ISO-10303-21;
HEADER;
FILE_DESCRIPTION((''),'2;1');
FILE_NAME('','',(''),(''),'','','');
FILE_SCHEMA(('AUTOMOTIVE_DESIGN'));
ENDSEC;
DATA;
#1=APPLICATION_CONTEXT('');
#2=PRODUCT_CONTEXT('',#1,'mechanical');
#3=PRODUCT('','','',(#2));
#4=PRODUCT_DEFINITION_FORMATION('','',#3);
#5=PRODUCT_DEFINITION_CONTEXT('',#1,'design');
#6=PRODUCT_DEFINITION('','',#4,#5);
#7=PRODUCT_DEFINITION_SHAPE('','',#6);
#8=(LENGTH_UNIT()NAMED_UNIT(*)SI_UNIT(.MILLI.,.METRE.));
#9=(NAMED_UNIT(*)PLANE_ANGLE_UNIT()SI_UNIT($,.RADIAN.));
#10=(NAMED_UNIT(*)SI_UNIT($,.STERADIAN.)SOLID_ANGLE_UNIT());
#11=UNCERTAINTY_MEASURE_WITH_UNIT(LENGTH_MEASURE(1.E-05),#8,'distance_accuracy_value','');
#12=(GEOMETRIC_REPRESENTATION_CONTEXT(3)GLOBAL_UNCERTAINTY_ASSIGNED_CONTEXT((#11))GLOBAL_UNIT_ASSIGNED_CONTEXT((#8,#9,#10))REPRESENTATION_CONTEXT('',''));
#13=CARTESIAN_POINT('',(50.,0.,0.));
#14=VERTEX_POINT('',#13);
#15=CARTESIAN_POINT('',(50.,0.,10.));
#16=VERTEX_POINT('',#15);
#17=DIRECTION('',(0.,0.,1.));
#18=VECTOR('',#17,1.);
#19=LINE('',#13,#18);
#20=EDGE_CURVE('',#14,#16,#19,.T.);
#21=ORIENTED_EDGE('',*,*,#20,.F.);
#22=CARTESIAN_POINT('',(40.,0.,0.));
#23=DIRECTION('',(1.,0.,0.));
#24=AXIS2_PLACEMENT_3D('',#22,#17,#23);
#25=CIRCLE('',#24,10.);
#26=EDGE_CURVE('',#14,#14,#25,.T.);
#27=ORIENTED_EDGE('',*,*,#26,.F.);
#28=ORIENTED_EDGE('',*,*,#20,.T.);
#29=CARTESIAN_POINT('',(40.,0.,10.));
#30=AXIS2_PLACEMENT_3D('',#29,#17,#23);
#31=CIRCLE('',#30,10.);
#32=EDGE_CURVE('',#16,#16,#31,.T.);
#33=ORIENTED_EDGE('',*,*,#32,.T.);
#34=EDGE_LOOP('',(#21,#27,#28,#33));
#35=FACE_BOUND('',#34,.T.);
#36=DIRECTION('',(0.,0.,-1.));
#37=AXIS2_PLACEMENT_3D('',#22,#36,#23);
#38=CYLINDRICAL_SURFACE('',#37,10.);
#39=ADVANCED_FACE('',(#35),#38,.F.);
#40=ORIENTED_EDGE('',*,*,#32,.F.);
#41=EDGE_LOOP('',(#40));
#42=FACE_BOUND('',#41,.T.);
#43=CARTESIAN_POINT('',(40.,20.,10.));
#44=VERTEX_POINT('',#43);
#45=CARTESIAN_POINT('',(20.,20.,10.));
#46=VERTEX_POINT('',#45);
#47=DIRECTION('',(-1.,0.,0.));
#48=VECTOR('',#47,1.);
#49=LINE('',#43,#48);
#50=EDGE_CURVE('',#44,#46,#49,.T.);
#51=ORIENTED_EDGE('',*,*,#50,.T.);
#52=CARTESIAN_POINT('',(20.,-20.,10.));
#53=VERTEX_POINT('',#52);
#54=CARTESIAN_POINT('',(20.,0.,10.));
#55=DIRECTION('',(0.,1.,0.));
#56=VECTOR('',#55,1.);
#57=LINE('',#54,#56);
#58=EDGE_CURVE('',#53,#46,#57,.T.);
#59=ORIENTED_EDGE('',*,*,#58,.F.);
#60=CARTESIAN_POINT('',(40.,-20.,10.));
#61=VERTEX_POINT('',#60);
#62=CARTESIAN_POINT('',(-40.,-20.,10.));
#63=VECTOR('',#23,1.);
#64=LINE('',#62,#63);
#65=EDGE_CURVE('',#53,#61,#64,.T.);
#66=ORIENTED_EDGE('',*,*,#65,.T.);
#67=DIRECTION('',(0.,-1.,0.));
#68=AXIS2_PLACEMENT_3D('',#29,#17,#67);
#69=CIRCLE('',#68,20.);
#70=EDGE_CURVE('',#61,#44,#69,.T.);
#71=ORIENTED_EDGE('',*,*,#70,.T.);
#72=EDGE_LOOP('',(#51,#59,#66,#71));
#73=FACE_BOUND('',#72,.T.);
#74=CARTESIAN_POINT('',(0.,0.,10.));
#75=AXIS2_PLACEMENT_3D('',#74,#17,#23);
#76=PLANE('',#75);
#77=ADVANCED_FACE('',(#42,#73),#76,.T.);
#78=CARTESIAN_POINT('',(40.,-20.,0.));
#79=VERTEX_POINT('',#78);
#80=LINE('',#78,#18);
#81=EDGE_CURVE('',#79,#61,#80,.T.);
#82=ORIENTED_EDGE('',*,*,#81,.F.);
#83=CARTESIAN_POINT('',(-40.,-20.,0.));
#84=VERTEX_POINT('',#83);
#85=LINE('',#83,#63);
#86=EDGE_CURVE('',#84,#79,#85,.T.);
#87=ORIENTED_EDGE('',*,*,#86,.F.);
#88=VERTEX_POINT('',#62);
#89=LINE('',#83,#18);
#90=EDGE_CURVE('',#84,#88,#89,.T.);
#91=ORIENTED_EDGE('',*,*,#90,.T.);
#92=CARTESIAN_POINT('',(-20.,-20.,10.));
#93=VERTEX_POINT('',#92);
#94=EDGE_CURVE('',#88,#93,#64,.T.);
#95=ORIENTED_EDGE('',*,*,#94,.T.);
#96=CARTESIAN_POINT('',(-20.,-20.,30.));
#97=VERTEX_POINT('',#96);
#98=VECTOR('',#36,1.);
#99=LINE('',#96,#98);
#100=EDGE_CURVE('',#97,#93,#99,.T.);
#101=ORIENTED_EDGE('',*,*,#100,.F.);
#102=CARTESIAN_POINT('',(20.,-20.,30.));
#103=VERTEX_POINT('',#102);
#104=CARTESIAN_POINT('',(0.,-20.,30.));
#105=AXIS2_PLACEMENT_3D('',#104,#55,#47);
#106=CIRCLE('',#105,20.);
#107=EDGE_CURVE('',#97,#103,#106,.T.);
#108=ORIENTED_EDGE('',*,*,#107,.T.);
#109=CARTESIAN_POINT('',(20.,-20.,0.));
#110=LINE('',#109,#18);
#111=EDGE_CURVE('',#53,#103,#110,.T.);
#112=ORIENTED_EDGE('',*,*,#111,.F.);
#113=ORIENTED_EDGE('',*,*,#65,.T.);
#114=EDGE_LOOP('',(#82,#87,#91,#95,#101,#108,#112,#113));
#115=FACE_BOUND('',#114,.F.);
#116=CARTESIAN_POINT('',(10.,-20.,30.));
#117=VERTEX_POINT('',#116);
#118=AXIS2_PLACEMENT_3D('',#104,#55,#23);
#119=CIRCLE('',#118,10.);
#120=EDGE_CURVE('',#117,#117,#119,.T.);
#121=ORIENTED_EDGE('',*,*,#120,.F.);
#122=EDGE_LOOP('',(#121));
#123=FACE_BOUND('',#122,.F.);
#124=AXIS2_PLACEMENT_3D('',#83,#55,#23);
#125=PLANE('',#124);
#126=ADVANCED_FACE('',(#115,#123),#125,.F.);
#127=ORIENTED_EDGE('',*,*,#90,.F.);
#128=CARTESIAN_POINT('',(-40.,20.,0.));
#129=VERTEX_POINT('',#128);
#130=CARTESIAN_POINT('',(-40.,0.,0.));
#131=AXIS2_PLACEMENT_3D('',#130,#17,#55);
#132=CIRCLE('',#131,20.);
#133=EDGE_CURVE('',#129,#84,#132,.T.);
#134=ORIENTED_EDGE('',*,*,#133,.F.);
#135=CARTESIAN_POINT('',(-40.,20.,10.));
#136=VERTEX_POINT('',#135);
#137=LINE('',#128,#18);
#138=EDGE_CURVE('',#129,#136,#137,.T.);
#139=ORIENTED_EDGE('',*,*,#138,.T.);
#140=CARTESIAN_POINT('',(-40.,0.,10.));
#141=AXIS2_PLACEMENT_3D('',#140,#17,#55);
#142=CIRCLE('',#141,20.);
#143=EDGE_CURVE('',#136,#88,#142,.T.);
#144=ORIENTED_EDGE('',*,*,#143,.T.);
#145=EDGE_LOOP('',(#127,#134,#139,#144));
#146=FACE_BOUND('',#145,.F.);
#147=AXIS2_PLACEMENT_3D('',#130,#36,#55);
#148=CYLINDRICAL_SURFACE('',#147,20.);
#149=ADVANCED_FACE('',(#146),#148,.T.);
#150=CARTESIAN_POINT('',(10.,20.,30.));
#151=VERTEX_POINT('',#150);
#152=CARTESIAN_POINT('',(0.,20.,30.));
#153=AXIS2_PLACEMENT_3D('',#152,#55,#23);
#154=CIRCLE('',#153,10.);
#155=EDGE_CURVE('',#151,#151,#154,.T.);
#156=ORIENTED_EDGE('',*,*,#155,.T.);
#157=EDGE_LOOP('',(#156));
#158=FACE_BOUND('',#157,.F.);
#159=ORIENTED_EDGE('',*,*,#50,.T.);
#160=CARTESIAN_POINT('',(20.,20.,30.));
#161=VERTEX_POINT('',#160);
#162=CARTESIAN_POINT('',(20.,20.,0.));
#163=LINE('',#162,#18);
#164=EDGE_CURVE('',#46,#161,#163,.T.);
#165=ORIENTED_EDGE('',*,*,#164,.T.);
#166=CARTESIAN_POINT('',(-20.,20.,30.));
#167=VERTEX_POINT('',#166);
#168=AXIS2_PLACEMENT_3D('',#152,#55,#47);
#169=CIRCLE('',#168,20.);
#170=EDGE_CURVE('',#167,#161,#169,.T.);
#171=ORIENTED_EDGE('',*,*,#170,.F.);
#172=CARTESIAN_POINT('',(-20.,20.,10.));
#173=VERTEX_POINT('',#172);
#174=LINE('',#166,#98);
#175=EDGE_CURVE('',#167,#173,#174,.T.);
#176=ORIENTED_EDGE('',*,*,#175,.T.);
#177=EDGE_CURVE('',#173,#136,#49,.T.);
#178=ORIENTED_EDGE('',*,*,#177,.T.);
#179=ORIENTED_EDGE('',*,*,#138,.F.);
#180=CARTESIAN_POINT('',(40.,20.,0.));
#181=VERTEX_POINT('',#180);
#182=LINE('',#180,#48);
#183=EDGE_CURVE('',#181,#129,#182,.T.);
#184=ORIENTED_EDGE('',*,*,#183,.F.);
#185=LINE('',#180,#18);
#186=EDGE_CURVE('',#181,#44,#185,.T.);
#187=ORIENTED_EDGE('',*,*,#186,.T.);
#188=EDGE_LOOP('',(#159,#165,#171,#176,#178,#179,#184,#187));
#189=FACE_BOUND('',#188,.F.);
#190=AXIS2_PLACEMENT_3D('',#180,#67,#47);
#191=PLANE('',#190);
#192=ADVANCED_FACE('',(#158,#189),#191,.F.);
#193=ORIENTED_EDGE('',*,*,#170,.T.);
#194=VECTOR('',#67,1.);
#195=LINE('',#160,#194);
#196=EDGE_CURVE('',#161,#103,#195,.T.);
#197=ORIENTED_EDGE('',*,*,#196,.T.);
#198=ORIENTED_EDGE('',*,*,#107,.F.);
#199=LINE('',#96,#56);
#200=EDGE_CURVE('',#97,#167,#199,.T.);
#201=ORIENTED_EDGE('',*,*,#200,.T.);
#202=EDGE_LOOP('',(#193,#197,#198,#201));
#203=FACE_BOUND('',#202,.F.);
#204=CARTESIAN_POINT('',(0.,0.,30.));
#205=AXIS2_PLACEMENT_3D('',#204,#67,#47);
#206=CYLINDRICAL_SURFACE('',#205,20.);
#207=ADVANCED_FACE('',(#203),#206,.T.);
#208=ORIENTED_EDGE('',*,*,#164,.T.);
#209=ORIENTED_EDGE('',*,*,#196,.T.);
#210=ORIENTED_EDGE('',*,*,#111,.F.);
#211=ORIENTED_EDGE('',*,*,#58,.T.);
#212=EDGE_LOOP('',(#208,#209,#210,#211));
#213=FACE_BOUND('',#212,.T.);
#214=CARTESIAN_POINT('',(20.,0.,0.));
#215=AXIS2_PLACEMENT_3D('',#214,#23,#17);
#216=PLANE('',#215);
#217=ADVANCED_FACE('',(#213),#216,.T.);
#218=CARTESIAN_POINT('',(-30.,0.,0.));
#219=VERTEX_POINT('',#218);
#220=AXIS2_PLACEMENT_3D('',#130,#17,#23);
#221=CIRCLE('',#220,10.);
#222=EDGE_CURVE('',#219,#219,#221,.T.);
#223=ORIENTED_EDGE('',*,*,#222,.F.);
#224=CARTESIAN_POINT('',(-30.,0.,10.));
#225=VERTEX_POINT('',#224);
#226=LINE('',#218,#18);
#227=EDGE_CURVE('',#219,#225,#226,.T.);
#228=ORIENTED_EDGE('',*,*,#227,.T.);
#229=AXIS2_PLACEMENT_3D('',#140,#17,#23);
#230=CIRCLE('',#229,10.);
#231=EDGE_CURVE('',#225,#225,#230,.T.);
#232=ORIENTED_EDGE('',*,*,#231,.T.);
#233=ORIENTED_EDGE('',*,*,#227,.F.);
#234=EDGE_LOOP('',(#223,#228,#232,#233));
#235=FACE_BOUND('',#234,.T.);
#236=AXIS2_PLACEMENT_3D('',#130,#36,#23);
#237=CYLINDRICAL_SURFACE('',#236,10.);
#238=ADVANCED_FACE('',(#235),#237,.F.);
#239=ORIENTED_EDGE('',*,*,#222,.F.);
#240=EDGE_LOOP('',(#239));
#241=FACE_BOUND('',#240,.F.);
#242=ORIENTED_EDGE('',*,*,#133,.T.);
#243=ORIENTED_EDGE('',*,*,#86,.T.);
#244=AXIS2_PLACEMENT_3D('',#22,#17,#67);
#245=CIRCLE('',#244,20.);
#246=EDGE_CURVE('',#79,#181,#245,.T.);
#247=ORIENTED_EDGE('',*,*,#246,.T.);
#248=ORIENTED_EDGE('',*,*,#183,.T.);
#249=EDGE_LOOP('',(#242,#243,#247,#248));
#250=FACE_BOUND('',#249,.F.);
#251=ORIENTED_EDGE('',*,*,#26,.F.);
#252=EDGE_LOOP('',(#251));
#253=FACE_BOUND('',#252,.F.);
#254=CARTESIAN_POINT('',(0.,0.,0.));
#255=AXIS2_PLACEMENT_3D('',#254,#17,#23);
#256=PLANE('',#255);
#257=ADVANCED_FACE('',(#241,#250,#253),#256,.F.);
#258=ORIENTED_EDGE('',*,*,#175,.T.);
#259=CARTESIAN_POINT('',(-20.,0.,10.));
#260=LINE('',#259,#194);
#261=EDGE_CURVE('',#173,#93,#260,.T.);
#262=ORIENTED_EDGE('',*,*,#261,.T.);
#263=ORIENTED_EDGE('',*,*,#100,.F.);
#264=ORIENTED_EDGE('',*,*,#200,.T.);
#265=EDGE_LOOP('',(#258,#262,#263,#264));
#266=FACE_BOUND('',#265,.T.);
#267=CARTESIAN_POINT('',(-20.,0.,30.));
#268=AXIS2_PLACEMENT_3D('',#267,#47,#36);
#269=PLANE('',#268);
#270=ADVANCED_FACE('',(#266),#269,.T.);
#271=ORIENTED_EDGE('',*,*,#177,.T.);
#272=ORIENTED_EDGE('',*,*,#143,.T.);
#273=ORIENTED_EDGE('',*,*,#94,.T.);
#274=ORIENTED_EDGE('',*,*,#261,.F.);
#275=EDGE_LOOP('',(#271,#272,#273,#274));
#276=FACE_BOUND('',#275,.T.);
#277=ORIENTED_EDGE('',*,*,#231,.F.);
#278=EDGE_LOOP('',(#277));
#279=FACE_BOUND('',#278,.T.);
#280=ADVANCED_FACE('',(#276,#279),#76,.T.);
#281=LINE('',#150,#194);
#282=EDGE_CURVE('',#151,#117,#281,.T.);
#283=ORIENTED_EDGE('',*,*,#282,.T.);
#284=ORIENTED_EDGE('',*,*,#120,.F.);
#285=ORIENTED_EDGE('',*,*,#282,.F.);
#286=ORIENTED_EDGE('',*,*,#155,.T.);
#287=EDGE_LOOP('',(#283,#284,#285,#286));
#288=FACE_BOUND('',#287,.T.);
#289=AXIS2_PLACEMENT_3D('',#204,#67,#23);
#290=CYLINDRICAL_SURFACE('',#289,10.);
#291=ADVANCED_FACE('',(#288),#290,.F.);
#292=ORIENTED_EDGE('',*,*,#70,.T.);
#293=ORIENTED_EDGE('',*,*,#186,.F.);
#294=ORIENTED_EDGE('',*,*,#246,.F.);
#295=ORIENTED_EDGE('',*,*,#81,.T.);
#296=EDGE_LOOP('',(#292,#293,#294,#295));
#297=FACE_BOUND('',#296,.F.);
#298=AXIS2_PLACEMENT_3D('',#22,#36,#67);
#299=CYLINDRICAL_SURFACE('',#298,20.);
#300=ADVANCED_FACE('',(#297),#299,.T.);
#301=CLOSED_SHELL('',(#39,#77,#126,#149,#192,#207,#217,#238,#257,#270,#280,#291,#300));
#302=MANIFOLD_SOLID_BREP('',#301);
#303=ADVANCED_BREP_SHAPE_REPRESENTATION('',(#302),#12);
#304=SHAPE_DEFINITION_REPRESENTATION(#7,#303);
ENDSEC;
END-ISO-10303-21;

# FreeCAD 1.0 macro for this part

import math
import FreeCAD as App
import Part
import Sketcher
from FreeCAD import Vector
Q = App.Units.Quantity

doc = App.newDocument("Part")
body = doc.addObject("PartDesign::Body", "Body")

sketch1 = body.newObject("Sketcher::SketchObject", "Sketch")
sketch1.AttachmentSupport = (doc.getObject("XY_Plane"), [""])
sketch1.MapMode = "FlatFace"
sketch1.addGeometry([
    Part.ArcOfCircle(Part.Circle(Vector(40, 0, 0), Vector(0, 0, 1), 20), math.radians(-90), math.radians(90)),
    Part.LineSegment(Vector(40, 20, 0), Vector(-40, 20, 0)),
    Part.ArcOfCircle(Part.Circle(Vector(-40, 0, 0), Vector(0, 0, 1), 20), math.radians(90), math.radians(270)),
    Part.LineSegment(Vector(-40, -20, 0), Vector(40, -20, 0)),
    Part.Circle(Vector(-40, 0, 0), Vector(0, 0, 1), 10),
    Part.Circle(Vector(40, 0, 0), Vector(0, 0, 1), 10),
], False)
sketch1.addConstraint([
    Sketcher.Constraint("Tangent", 0, 2, 1, 1),
    Sketcher.Constraint("Tangent", 1, 2, 2, 1),
    Sketcher.Constraint("Tangent", 2, 2, 3, 1),
    Sketcher.Constraint("Tangent", 3, 2, 0, 1),
    Sketcher.Constraint("Horizontal", 1),
    Sketcher.Constraint("Horizontal", 3),
    Sketcher.Constraint("Coincident", 4, 3, 2, 3),
    Sketcher.Constraint("Coincident", 5, 3, 0, 3),
    Sketcher.Constraint("Equal", 4, 5),
    Sketcher.Constraint("Symmetric", 0, 3, 2, 3, -1, 1),
    Sketcher.Constraint("Diameter", 4, Q("20 mm")),
    Sketcher.Constraint("Radius", 0, Q("20 mm")),
    Sketcher.Constraint("DistanceX", 1, 2, 1, 1, Q("80 mm")),
])
pad1 = body.newObject("PartDesign::Pad", "Pad")
pad1.Profile = sketch1
pad1.Length = 10

sketch2 = body.newObject("Sketcher::SketchObject", "Sketch001")
sketch2.AttachmentSupport = (doc.getObject("XZ_Plane"), [""])
sketch2.MapMode = "FlatFace"
sketch2.addGeometry([
    Part.LineSegment(Vector(20, 0, 0), Vector(-20, 0, 0)),
    Part.LineSegment(Vector(-20, 0, 0), Vector(-20, 30, 0)),
    Part.ArcOfCircle(Part.Circle(Vector(0, 30, 0), Vector(0, 0, 1), 20), math.radians(0), math.radians(180)),
    Part.LineSegment(Vector(20, 30, 0), Vector(20, 0, 0)),
    Part.Circle(Vector(0, 30, 0), Vector(0, 0, 1), 10),
], False)
sketch2.addConstraint([
    Sketcher.Constraint("Coincident", 0, 2, 1, 1),
    Sketcher.Constraint("Tangent", 1, 2, 2, 2),
    Sketcher.Constraint("Tangent", 2, 1, 3, 1),
    Sketcher.Constraint("Coincident", 3, 2, 0, 1),
    Sketcher.Constraint("Horizontal", 0),
    Sketcher.Constraint("Vertical", 1),
    Sketcher.Constraint("Vertical", 3),
    Sketcher.Constraint("Coincident", 4, 3, 2, 3),
    Sketcher.Constraint("Symmetric", 0, 2, 3, 2, -1, 1),
    Sketcher.Constraint("Diameter", 4, Q("20 mm")),
    Sketcher.Constraint("Radius", 2, Q("20 mm")),
    Sketcher.Constraint("DistanceY", 1, 1, 1, 2, Q("30 mm")),
])
pad2 = body.newObject("PartDesign::Pad", "Pad001")
pad2.Profile = sketch2
pad2.Length = 40
pad2.Midplane = True

doc.recompute()
